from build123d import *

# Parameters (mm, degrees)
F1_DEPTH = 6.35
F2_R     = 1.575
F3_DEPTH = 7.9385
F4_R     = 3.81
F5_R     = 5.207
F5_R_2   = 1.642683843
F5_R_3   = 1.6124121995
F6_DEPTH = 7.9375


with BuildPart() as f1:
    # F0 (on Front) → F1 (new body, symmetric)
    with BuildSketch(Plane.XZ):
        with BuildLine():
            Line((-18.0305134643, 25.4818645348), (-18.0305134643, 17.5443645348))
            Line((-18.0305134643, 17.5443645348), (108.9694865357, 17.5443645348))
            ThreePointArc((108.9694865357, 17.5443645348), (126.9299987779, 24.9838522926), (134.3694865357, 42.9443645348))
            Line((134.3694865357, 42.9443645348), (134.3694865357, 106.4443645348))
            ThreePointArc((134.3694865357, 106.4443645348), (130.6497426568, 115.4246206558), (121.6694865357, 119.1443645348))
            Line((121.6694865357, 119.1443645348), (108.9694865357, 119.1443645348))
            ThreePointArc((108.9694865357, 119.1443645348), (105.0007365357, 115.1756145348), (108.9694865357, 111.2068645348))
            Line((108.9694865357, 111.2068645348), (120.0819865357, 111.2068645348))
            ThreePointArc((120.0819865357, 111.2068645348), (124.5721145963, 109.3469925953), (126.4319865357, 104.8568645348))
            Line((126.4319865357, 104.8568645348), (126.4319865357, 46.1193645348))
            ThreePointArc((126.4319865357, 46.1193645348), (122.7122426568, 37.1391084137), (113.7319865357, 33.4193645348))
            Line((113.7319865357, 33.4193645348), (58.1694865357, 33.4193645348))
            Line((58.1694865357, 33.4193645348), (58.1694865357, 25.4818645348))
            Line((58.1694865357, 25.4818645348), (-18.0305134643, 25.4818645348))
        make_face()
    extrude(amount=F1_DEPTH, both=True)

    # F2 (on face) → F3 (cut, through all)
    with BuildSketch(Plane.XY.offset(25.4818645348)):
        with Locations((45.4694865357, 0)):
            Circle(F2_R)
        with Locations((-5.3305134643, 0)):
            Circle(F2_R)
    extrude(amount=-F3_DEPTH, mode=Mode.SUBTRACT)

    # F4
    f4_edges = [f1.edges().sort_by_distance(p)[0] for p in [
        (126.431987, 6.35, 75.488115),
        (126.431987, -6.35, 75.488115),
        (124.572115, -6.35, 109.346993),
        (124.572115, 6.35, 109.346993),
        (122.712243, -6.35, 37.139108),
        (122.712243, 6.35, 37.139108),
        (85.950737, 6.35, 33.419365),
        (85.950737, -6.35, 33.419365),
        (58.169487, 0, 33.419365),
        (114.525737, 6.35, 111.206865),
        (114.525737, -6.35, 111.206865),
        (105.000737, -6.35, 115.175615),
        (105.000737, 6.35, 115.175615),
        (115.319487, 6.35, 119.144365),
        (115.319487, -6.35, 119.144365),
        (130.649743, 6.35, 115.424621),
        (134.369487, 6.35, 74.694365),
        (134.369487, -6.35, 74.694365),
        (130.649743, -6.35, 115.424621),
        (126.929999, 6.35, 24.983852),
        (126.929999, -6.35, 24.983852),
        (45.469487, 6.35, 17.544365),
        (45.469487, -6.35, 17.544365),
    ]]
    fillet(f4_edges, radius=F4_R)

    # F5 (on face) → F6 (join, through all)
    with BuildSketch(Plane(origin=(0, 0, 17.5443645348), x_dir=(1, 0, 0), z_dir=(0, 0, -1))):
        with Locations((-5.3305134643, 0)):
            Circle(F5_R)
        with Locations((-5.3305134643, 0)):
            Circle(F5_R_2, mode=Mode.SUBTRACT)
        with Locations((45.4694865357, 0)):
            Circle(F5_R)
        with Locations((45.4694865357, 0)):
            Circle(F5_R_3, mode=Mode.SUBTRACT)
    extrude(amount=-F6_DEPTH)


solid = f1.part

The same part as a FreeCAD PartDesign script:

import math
import FreeCAD as App
import Part
import Sketcher
Q = App.Units.Quantity


def edges_at(feature, points):
    """Names of the edges that pass closest to the given points."""
    edges = feature.Shape.Edges
    near = lambda p: min(range(len(edges)), key=lambda i: edges[i].distToShape(Part.Vertex(*p))[0])
    return sorted({f"Edge{near(p) + 1}" for p in points})

doc = App.newDocument("Part")
body = doc.addObject("PartDesign::Body", "Body")

# Sketch on XZ plane
sketch1 = body.newObject("Sketcher::SketchObject", "Sketch")
sketch1.AttachmentSupport = (doc.getObject("XZ_Plane"), [""])
sketch1.MapMode = "FlatFace"
sketch1.addGeometry([
    Part.LineSegment(App.Vector(-18, 25.5, 0), App.Vector(-18, 17.5, 0)),  # 0
    Part.LineSegment(App.Vector(-18, 17.5, 0), App.Vector(109, 17.5, 0)),  # 1
    Part.ArcOfCircle(Part.Circle(App.Vector(109, 42.9, 0), App.Vector(0, 0, 1), 25.4), math.radians(-90), math.radians(0)),  # 2
    Part.LineSegment(App.Vector(134.4, 42.9, 0), App.Vector(134.4, 106.4, 0)),  # 3
    Part.ArcOfCircle(Part.Circle(App.Vector(121.7, 106.4, 0), App.Vector(0, 0, 1), 12.7), math.radians(0), math.radians(90)),  # 4
    Part.LineSegment(App.Vector(121.7, 119.1, 0), App.Vector(109, 119.1, 0)),  # 5
    Part.ArcOfCircle(Part.Circle(App.Vector(109, 115.2, 0), App.Vector(0, 0, 1), 4), math.radians(90), math.radians(270)),  # 6
    Part.LineSegment(App.Vector(109, 111.2, 0), App.Vector(120.1, 111.2, 0)),  # 7
    Part.ArcOfCircle(Part.Circle(App.Vector(120.1, 104.9, 0), App.Vector(0, 0, 1), 6.3), math.radians(0), math.radians(90)),  # 8
    Part.LineSegment(App.Vector(126.4, 104.9, 0), App.Vector(126.4, 46.1, 0)),  # 9
    Part.ArcOfCircle(Part.Circle(App.Vector(113.7, 46.1, 0), App.Vector(0, 0, 1), 12.7), math.radians(-90), math.radians(0)),  # 10
    Part.LineSegment(App.Vector(113.7, 33.4, 0), App.Vector(58.2, 33.4, 0)),  # 11
    Part.LineSegment(App.Vector(58.2, 33.4, 0), App.Vector(58.2, 25.5, 0)),  # 12
    Part.LineSegment(App.Vector(58.2, 25.5, 0), App.Vector(-18, 25.5, 0)),  # 13
], False)
sketch1.addConstraint([
    Sketcher.Constraint("Coincident", 0, 2, 1, 1),
    Sketcher.Constraint("Tangent", 1, 2, 2, 1),
    Sketcher.Constraint("Tangent", 2, 2, 3, 1),
    Sketcher.Constraint("Tangent", 3, 2, 4, 1),
    Sketcher.Constraint("Tangent", 4, 2, 5, 1),
    Sketcher.Constraint("Tangent", 5, 2, 6, 1),
    Sketcher.Constraint("Tangent", 6, 2, 7, 1),
    Sketcher.Constraint("Tangent", 7, 2, 8, 2),
    Sketcher.Constraint("Tangent", 8, 1, 9, 1),
    Sketcher.Constraint("Tangent", 9, 2, 10, 2),
    Sketcher.Constraint("Tangent", 10, 1, 11, 1),
    Sketcher.Constraint("Coincident", 11, 2, 12, 1),
    Sketcher.Constraint("Coincident", 12, 2, 13, 1),
    Sketcher.Constraint("Coincident", 13, 2, 0, 1),
    Sketcher.Constraint("Vertical", 0),
    Sketcher.Constraint("Horizontal", 1),
    Sketcher.Constraint("Vertical", 3),
    Sketcher.Constraint("Horizontal", 5),
    Sketcher.Constraint("Horizontal", 7),
    Sketcher.Constraint("Vertical", 9),
    Sketcher.Constraint("Horizontal", 11),
    Sketcher.Constraint("Vertical", 12),
    Sketcher.Constraint("Horizontal", 13),
    Sketcher.Constraint("Equal", 4, 10),
    Sketcher.Constraint("Vertical", 2, 3, 6, 3),
    Sketcher.Constraint("Equal", 0, 12),
    Sketcher.Constraint("Radius", 2, Q("1 in")),
    Sketcher.Constraint("Radius", 4, Q("0.5 in")),
    Sketcher.Constraint("DistanceX", 1, 1, 1, 2, Q("5 in")),
    Sketcher.Constraint("DistanceX", 13, 2, 13, 1, Q("3 in")),
    Sketcher.Constraint("Radius", 8, Q("0.25 in")),
    Sketcher.Constraint("DistanceY", 3, 1, 3, 2, Q("2.5 in")),
    Sketcher.Constraint("Radius", 6, Q("0.15625 in")),
    Sketcher.Constraint("DistanceX", 7, 1, 7, 2, Q("0.4375 in")),
    Sketcher.Constraint("DistanceY", 0, 2, 0, 1, Q("0.3125 in")),
    Sketcher.Constraint("DistanceX", -1, 1, 2, 3, Q("108.969487 mm")),
    Sketcher.Constraint("DistanceY", -1, 1, 2, 3, Q("42.944365 mm")),
])
pad1 = body.newObject("PartDesign::Pad", "Pad")
pad1.Profile = sketch1
pad1.Length = Q("0.5 in")
pad1.Midplane = True

# Sketch on XY plane
sketch2 = body.newObject("Sketcher::SketchObject", "Sketch001")
sketch2.AttachmentSupport = (doc.getObject("XY_Plane"), [""])
sketch2.MapMode = "FlatFace"
sketch2.AttachmentOffset = App.Placement(App.Vector(0, 0, 25.481865), App.Rotation())
sketch2.addGeometry([
    Part.Circle(App.Vector(45.5, 0, 0), App.Vector(0, 0, 1), 1.6),
    Part.Circle(App.Vector(-5.3, 0, 0), App.Vector(0, 0, 1), 1.6),
], False)
sketch2.addConstraint([
    Sketcher.Constraint("Equal", 0, 1),
    Sketcher.Constraint("PointOnObject", 0, 3, -1),
    Sketcher.Constraint("PointOnObject", 1, 3, -1),
    Sketcher.Constraint("DistanceX", 1, 3, 0, 3, Q("2 in")),
    Sketcher.Constraint("Diameter", 0, Q("3.15 mm")),
    Sketcher.Constraint("DistanceX", -1, 1, 0, 3, Q("45.469487 mm")),
])
pocket1 = body.newObject("PartDesign::Pocket", "Pocket")
pocket1.Profile = sketch2
pocket1.Type = "ThroughAll"
doc.recompute()

fillet = body.newObject("PartDesign::Fillet", "Fillet")
fillet.Base = (pocket1, edges_at(pocket1, [
    (126.432, 6.35, 75.488),
    (126.432, -6.35, 75.488),
    (124.572, -6.35, 109.347),
    (124.572, 6.35, 109.347),
    (122.712, -6.35, 37.139),
    (122.712, 6.35, 37.139),
    (85.951, 6.35, 33.419),
    (85.951, -6.35, 33.419),
    (58.169, 0, 33.419),
    (114.526, 6.35, 111.207),
    (114.526, -6.35, 111.207),
    (105.001, -6.35, 115.176),
    (105.001, 6.35, 115.176),
    (115.319, 6.35, 119.144),
    (115.319, -6.35, 119.144),
    (130.65, 6.35, 115.425),
    (134.369, 6.35, 74.694),
    (134.369, -6.35, 74.694),
    (130.65, -6.35, 115.425),
    (126.93, 6.35, 24.984),
    (126.93, -6.35, 24.984),
    (45.469, 6.35, 17.544),
    (45.469, -6.35, 17.544),
]))
fillet.Radius = Q("0.15 in")

# Sketch on XY plane
sketch3 = body.newObject("Sketcher::SketchObject", "Sketch002")
sketch3.AttachmentSupport = (doc.getObject("XY_Plane"), [""])
sketch3.MapMode = "FlatFace"
sketch3.AttachmentOffset = App.Placement(App.Vector(0, 0, 17.544365), App.Rotation())
sketch3.addGeometry([
    Part.Circle(App.Vector(-5.3, 0, 0), App.Vector(0, 0, 1), 5.2),
    Part.Circle(App.Vector(-5.3, 0, 0), App.Vector(0, 0, 1), 1.6),
    Part.Circle(App.Vector(45.5, 0, 0), App.Vector(0, 0, 1), 5.2),
    Part.Circle(App.Vector(45.5, 0, 0), App.Vector(0, 0, 1), 1.6),
], False)
sketch3.addConstraint([
    Sketcher.Constraint("Coincident", 1, 3, 0, 3),
    Sketcher.Constraint("Coincident", 3, 3, 2, 3),
    Sketcher.Constraint("Equal", 0, 2),
    Sketcher.Constraint("PointOnObject", 0, 3, -1),
    Sketcher.Constraint("PointOnObject", 2, 3, -1),
    Sketcher.Constraint("Diameter", 0, Q("0.41 in")),
    Sketcher.Constraint("DistanceX", 0, 3, 2, 3, Q("2 in")),
    Sketcher.Constraint("Diameter", 1, Q("3.285368 mm")),
    Sketcher.Constraint("Diameter", 3, Q("3.224824 mm")),
    Sketcher.Constraint("DistanceX", 0, 3, -1, 1, Q("5.330513 mm")),
])
pad2 = body.newObject("PartDesign::Pad", "Pad001")
pad2.Profile = sketch3
pad2.Type = "UpToLast"

doc.recompute()
